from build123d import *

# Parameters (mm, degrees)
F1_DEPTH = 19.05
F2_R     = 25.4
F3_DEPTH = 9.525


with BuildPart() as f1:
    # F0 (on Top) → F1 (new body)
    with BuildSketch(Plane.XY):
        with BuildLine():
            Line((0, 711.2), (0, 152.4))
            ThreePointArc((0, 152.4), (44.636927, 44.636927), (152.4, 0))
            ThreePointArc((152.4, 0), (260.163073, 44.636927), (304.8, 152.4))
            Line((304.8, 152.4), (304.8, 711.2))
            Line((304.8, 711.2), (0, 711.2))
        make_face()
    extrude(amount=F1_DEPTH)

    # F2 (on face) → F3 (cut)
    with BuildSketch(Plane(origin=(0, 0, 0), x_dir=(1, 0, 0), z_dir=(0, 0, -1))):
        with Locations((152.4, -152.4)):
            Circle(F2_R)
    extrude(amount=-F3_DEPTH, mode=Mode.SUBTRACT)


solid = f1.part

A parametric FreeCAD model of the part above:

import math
import FreeCAD as App
import Part
import Sketcher

V = App.Vector
Q = App.Units.Quantity

doc = App.newDocument("Part")
body = doc.addObject("PartDesign::Body", "Body")

# Sketch on XY plane
sketch1 = body.newObject("Sketcher::SketchObject", "Sketch")
sketch1.AttachmentSupport = (doc.getObject("XY_Plane"), [""])
sketch1.MapMode = "FlatFace"
sketch1.addGeometry([
    Part.LineSegment(V(0, 711.2, 0), V(0, 152.4, 0)),  # 0
    Part.ArcOfCircle(Part.Circle(V(152.400002, 152.400002, 0), V(0, 0, 1), 152.400002), math.radians(-179.999999), math.radians(-90.000001)),  # 1
    Part.ArcOfCircle(Part.Circle(V(152.399998, 152.400002, 0), V(0, 0, 1), 152.400002), math.radians(-89.999999), math.radians(-0.000001)),  # 2
    Part.LineSegment(V(304.8, 152.4, 0), V(304.8, 711.2, 0)),  # 3
    Part.LineSegment(V(304.8, 711.2, 0), V(0, 711.2, 0)),  # 4
], False)
sketch1.addConstraint([
    Sketcher.Constraint("Tangent", 0, 2, 1, 1),
    Sketcher.Constraint("Tangent", 1, 2, 2, 1),
    Sketcher.Constraint("Tangent", 2, 2, 3, 1),
    Sketcher.Constraint("Coincident", 3, 2, 4, 1),
    Sketcher.Constraint("Coincident", 4, 2, 0, 1),
    Sketcher.Constraint("Vertical", 0),
    Sketcher.Constraint("Vertical", 3),
    Sketcher.Constraint("Horizontal", 4),
    Sketcher.Constraint("Equal", 1, 2),
    Sketcher.Constraint("PointOnObject", 0, 2, -2),
    Sketcher.Constraint("PointOnObject", 1, 2, -1),
    Sketcher.Constraint("Vertical", 2, 3, 1, 2),
    Sketcher.Constraint("Radius", 1, Q("6.0000001 in")),
    Sketcher.Constraint("DistanceY", 0, 2, 0, 1, Q("22 in")),
])
pad1 = body.newObject("PartDesign::Pad", "Pad")
pad1.Profile = sketch1
pad1.Length = Q("0.75 in")

# Sketch on XY plane
sketch2 = body.newObject("Sketcher::SketchObject", "Sketch001")
sketch2.AttachmentSupport = (doc.getObject("XY_Plane"), [""])
sketch2.MapMode = "FlatFace"
sketch2.addGeometry(Part.Circle(V(152.4, 152.4, 0), V(0, 0, 1), 25.4), False)
sketch2.addConstraint([
    Sketcher.Constraint("Diameter", 0, Q("2 in")),
    Sketcher.Constraint("DistanceX", -1, 1, 0, 3, Q("6 in")),
    Sketcher.Constraint("DistanceY", -1, 1, 0, 3, Q("6 in")),
])
pocket1 = body.newObject("PartDesign::Pocket", "Pocket")
pocket1.Profile = sketch2
pocket1.Length = Q("0.375 in")
pocket1.Reversed = True

doc.recompute()
